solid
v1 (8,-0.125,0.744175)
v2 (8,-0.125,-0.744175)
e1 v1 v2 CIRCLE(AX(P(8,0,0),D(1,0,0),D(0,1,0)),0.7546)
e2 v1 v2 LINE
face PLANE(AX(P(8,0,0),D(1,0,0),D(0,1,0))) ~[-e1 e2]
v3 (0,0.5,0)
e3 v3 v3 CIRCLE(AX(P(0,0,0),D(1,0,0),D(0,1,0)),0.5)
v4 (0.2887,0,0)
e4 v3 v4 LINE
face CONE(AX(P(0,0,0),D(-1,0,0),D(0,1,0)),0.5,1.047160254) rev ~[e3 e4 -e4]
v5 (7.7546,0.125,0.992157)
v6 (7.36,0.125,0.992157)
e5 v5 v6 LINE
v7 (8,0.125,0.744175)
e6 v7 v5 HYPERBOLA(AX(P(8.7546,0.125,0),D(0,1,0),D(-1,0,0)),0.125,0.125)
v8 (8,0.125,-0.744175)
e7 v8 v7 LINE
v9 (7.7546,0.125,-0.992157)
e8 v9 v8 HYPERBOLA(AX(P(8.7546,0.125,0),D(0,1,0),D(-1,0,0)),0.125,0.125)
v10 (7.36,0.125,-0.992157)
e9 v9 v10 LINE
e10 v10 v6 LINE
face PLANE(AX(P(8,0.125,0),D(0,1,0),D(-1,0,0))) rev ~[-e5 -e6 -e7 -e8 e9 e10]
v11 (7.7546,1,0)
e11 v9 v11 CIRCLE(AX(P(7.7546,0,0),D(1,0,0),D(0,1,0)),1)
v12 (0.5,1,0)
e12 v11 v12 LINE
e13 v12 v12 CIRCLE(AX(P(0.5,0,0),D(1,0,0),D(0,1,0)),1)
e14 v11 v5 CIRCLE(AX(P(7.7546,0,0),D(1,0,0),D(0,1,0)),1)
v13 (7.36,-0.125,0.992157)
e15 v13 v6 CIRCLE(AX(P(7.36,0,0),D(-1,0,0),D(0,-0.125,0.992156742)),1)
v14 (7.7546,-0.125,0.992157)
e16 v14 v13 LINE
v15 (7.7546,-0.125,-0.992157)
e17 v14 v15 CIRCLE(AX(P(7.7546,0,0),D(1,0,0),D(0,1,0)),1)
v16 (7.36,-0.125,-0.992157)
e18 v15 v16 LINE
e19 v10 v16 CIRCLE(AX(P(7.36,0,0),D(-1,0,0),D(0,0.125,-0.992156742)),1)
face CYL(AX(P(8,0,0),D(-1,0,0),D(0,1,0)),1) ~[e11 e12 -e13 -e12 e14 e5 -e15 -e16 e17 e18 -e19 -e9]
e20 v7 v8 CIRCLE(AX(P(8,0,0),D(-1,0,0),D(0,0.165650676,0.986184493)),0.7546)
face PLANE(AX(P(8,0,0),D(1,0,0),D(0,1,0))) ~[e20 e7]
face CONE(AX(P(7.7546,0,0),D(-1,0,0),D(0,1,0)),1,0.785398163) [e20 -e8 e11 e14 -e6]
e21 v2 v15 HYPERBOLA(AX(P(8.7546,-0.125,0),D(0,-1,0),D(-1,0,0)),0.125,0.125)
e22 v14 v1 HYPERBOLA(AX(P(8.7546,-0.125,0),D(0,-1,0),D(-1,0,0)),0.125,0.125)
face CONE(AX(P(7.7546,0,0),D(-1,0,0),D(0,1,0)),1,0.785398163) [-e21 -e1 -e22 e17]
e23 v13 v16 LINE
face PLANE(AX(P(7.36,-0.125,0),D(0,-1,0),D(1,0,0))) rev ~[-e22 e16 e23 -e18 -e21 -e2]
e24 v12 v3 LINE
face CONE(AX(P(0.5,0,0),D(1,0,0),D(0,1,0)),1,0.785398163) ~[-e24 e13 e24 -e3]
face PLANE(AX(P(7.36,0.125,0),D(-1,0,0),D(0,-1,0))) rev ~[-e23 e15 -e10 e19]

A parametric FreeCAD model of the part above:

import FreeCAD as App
import Part
import Sketcher
Q = App.Units.Quantity


def edges_at(feature, points):
    """Names of the edges that pass closest to the given points."""
    edges = feature.Shape.Edges
    near = lambda p: min(range(len(edges)), key=lambda i: edges[i].distToShape(Part.Vertex(*p))[0])
    return sorted({f"Edge{near(p) + 1}" for p in points})


def add_polygon(sketch, points):
    """Adds a closed chain of lines whose ends are joined by coincident constraints."""
    first, n = sketch.GeometryCount, len(points)
    for a, b in zip(points, points[1:] + points[:1]):
        sketch.addGeometry(Part.LineSegment(App.Vector(*a, 0), App.Vector(*b, 0)), False)
    for i in range(n):
        sketch.addConstraint(Sketcher.Constraint("Coincident", first + i, 2, first + (i + 1) % n, 1))

doc = App.newDocument("Part")
params = doc.addObject("Spreadsheet::Sheet", "Params")
for row, (alias, value) in enumerate([
    ("sketch1_height", "1 mm"),
    ("sketch1_width", "7.5 mm"),
    ("revolution_angle", "360 deg"),
    ("chamfer_size", "0.2454 mm"),
    ("sketch2_width", "0.64 mm"),
    ("pocket1_length", "2 mm"),
], start=1):
    params.set(f"A{row}", alias)
    params.set(f"B{row}", "=" + value)
    params.setAlias(f"B{row}", alias)

body = doc.addObject("PartDesign::Body", "Body")

# Sketch on XY plane
sketch1 = body.newObject("Sketcher::SketchObject", "Sketch")
sketch1.AttachmentSupport = (doc.getObject("XY_Plane"), [""])
sketch1.MapMode = "FlatFace"
add_polygon(sketch1, [(0, 0.5), (0.2887, 0), (8, 0), (8, 1), (0.5, 1)])  # lines 0-4
sketch1.addConstraint([
    Sketcher.Constraint("Horizontal", 1),
    Sketcher.Constraint("Vertical", 2),
    Sketcher.Constraint("Horizontal", 3),
    Sketcher.Constraint("PointOnObject", 0, 2, -1),
    Sketcher.Constraint("PointOnObject", 4, 2, -2),
    Sketcher.Constraint("DistanceY", 2, 1, 2, 2, 1.0),
    Sketcher.Constraint("DistanceX", -1, 1, 1, 2, 8.0),
    Sketcher.Constraint("Angle", 4, Q("-135 deg")),
    Sketcher.Constraint("DistanceX", 3, 2, 3, 1, 7.5),
    Sketcher.Constraint("DistanceX", 1, 1, 1, 2, 7.7113),
])
sketch1.setExpression("Constraints[10]", "Params.sketch1_height")
sketch1.setExpression("Constraints[13]", "Params.sketch1_width")
revolution = body.newObject("PartDesign::Revolution", "Revolution")
revolution.Profile = sketch1
revolution.ReferenceAxis = (sketch1, ["H_Axis"])
revolution.setExpression("Angle", "Params.revolution_angle")
doc.recompute()

chamfer = body.newObject("PartDesign::Chamfer", "Chamfer")
chamfer.Base = (revolution, edges_at(revolution, [(8, -1, 0)]))
chamfer.setExpression("Size", "Params.chamfer_size")

# Sketch on XY plane
sketch2 = body.newObject("Sketcher::SketchObject", "Sketch001")
sketch2.AttachmentSupport = (doc.getObject("XY_Plane"), [""])
sketch2.MapMode = "FlatFace"
add_polygon(sketch2, [(8, 0.125), (7.36, 0.125), (7.36, -0.125), (8, -0.125)])  # lines 0-3
sketch2.addConstraint([
    Sketcher.Constraint("Horizontal", 0),
    Sketcher.Constraint("Vertical", 1),
    Sketcher.Constraint("Horizontal", 2),
    Sketcher.Constraint("Vertical", 3),
    Sketcher.Constraint("DistanceX", 0, 2, 0, 1, 0.64),
    Sketcher.Constraint("DistanceY", -1, 1, 0, 2, 0.125),
    Sketcher.Constraint("DistanceY", 1, 2, -1, 1, 0.125),
    Sketcher.Constraint("DistanceX", -1, 1, 2, 2, 8.0),
])
sketch2.setExpression("Constraints[8]", "Params.sketch2_width")
pocket1 = body.newObject("PartDesign::Pocket", "Pocket")
pocket1.Profile = sketch2
pocket1.setExpression("Length", "Params.pocket1_length")
pocket1.Midplane = True

doc.recompute()
